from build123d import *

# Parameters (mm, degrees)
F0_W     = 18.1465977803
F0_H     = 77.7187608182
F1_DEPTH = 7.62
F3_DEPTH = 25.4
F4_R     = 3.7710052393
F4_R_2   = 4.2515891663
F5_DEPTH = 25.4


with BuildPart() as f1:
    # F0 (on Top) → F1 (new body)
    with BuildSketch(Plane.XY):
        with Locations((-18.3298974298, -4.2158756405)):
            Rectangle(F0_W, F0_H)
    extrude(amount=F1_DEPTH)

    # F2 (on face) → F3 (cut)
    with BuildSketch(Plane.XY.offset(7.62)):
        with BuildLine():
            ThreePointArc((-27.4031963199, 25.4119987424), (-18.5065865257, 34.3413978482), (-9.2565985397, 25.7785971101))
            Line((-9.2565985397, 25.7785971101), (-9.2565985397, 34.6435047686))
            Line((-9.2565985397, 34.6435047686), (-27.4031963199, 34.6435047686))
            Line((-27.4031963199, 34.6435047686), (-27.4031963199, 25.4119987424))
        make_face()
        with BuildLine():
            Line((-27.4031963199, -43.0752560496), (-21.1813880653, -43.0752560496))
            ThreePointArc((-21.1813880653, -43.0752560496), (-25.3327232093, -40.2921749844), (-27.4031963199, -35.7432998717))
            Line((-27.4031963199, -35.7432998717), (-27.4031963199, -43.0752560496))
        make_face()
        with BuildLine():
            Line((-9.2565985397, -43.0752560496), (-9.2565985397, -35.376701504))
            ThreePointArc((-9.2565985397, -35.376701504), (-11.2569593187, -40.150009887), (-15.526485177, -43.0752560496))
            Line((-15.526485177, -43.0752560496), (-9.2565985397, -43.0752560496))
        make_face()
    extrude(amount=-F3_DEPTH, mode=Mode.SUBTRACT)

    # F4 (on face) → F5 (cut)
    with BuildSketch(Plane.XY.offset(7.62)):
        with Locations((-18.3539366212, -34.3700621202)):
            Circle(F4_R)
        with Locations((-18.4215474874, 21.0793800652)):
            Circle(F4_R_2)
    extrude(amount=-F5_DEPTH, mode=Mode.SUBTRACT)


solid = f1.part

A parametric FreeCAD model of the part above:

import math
import FreeCAD as App
import Part
import Sketcher
from FreeCAD import Vector
Q = App.Units.Quantity


def add_polygon(sketch, points):
    """Adds a closed chain of lines whose ends are joined by coincident constraints."""
    first, n = sketch.GeometryCount, len(points)
    for a, b in zip(points, points[1:] + points[:1]):
        sketch.addGeometry(Part.LineSegment(App.Vector(*a, 0), App.Vector(*b, 0)), False)
    for i in range(n):
        sketch.addConstraint(Sketcher.Constraint("Coincident", first + i, 2, first + (i + 1) % n, 1))

doc = App.newDocument("Part")
body = doc.addObject("PartDesign::Body", "Body")

sketch1 = body.newObject("Sketcher::SketchObject", "Sketch")
sketch1.AttachmentSupport = (doc.getObject("XY_Plane"), [""])
sketch1.MapMode = "FlatFace"
add_polygon(sketch1, [(-27.403196, 34.643505), (-27.403196, -43.075256), (-9.256599, -43.075256), (-9.256599, 34.643505)])
sketch1.addConstraint(Sketcher.Constraint("Vertical", 0))
sketch1.addConstraint(Sketcher.Constraint("Horizontal", 1))
sketch1.addConstraint(Sketcher.Constraint("Vertical", 2))
sketch1.addConstraint(Sketcher.Constraint("Horizontal", 3))
sketch1.addConstraint(Sketcher.Constraint("DistanceY", 0, 2, 0, 1, Q("77.718761 mm")))
sketch1.addConstraint(Sketcher.Constraint("DistanceX", 1, 2, -1, 1, Q("9.256599 mm")))
sketch1.addConstraint(Sketcher.Constraint("DistanceX", 1, 1, 1, 2, Q("18.146598 mm")))
sketch1.addConstraint(Sketcher.Constraint("DistanceY", 0, 2, -1, 1, Q("43.075256 mm")))
pad1 = body.newObject("PartDesign::Pad", "Pad")
pad1.Profile = sketch1
pad1.Length = Q("0.3 in")

sketch2 = body.newObject("Sketcher::SketchObject", "Sketch001")
sketch2.AttachmentSupport = (doc.getObject("XY_Plane"), [""])
sketch2.MapMode = "FlatFace"
sketch2.AttachmentOffset = App.Placement(Vector(0, 0, 0.3 * 25.4), App.Rotation())
sketch2.addGeometry(Part.ArcOfCircle(Part.Circle(Vector(-18.323164, 25.261979, 0), Vector(0, 0, 1), 9.081272), math.radians(3.261223), math.radians(179.053446)), False)
sketch2.addGeometry(Part.LineSegment(Vector(-9.256599, 25.778597, 0), Vector(-9.256599, 34.643505, 0)), False)
sketch2.addGeometry(Part.LineSegment(Vector(-9.256599, 34.643505, 0), Vector(-27.403196, 34.643505, 0)), False)
sketch2.addGeometry(Part.LineSegment(Vector(-27.403196, 34.643505, 0), Vector(-27.403196, 25.411999, 0)), False)
sketch2.addGeometry(Part.LineSegment(Vector(-27.403196, -43.075256, 0), Vector(-21.181388, -43.075256, 0)), False)
sketch2.addGeometry(Part.ArcOfCircle(Part.Circle(Vector(-18.353937, -34.370062, 0), Vector(0, 0, 1), 9.152862), math.radians(-171.37112), math.radians(-107.993823)), False)
sketch2.addGeometry(Part.LineSegment(Vector(-27.403196, -35.7433, 0), Vector(-27.403196, -43.075256, 0)), False)
sketch2.addGeometry(Part.LineSegment(Vector(-9.256599, -43.075256, 0), Vector(-9.256599, -35.376702, 0)), False)
sketch2.addGeometry(Part.ArcOfCircle(Part.Circle(Vector(-18.353937, -34.370062, 0), Vector(0, 0, 1), 9.152862), math.radians(-72.006177), math.radians(-6.314211)), False)
sketch2.addGeometry(Part.LineSegment(Vector(-15.526485, -43.075256, 0), Vector(-9.256599, -43.075256, 0)), False)
sketch2.addConstraint(Sketcher.Constraint("Coincident", 0, 1, 1, 1))
sketch2.addConstraint(Sketcher.Constraint("Coincident", 1, 2, 2, 1))
sketch2.addConstraint(Sketcher.Constraint("Coincident", 2, 2, 3, 1))
sketch2.addConstraint(Sketcher.Constraint("Coincident", 3, 2, 0, 2))
sketch2.addConstraint(Sketcher.Constraint("Coincident", 4, 2, 5, 2))
sketch2.addConstraint(Sketcher.Constraint("Coincident", 5, 1, 6, 1))
sketch2.addConstraint(Sketcher.Constraint("Coincident", 6, 2, 4, 1))
sketch2.addConstraint(Sketcher.Constraint("Coincident", 7, 2, 8, 2))
sketch2.addConstraint(Sketcher.Constraint("Coincident", 8, 1, 9, 1))
sketch2.addConstraint(Sketcher.Constraint("Coincident", 9, 2, 7, 1))
sketch2.addConstraint(Sketcher.Constraint("Vertical", 1))
sketch2.addConstraint(Sketcher.Constraint("Horizontal", 2))
sketch2.addConstraint(Sketcher.Constraint("Vertical", 3))
sketch2.addConstraint(Sketcher.Constraint("Horizontal", 4))
sketch2.addConstraint(Sketcher.Constraint("Vertical", 6))
sketch2.addConstraint(Sketcher.Constraint("Vertical", 7))
sketch2.addConstraint(Sketcher.Constraint("Horizontal", 9))
sketch2.addConstraint(Sketcher.Constraint("Coincident", 8, 3, 5, 3))
sketch2.addConstraint(Sketcher.Constraint("Equal", 5, 8))
sketch2.addConstraint(Sketcher.Constraint("Horizontal", 6, 2, 8, 1))
sketch2.addConstraint(Sketcher.Constraint("Vertical", 3, 2, 5, 1))
sketch2.addConstraint(Sketcher.Constraint("Vertical", 1, 2, 7, 2))
sketch2.addConstraint(Sketcher.Constraint("Radius", 0, Q("9.081272 mm")))
sketch2.addConstraint(Sketcher.Constraint("Radius", 5, Q("9.152862 mm")))
sketch2.addConstraint(Sketcher.Constraint("DistanceX", 4, 1, 4, 2, Q("6.221808 mm")))
sketch2.addConstraint(Sketcher.Constraint("DistanceX", 0, 1, -1, 1, Q("9.256599 mm")))
sketch2.addConstraint(Sketcher.Constraint("DistanceY", -1, 1, 3, 2, Q("25.411999 mm")))
sketch2.addConstraint(Sketcher.Constraint("DistanceY", 5, 1, -1, 1, Q("35.7433 mm")))
sketch2.addConstraint(Sketcher.Constraint("DistanceY", 7, 2, -1, 1, Q("35.376702 mm")))
sketch2.addConstraint(Sketcher.Constraint("DistanceY", 3, 2, 0, 1, Q("0.366598 mm")))
sketch2.addConstraint(Sketcher.Constraint("DistanceX", 2, 2, 2, 1, Q("18.146598 mm")))
sketch2.addConstraint(Sketcher.Constraint("DistanceY", 1, 1, 1, 2, Q("8.864908 mm")))
pocket1 = body.newObject("PartDesign::Pocket", "Pocket")
pocket1.Profile = sketch2
pocket1.Length = Q("1 in")

sketch3 = body.newObject("Sketcher::SketchObject", "Sketch002")
sketch3.AttachmentSupport = (doc.getObject("XY_Plane"), [""])
sketch3.MapMode = "FlatFace"
sketch3.AttachmentOffset = App.Placement(Vector(0, 0, 0.3 * 25.4), App.Rotation())
sketch3.addGeometry(Part.Circle(Vector(-18.353937, -34.370062, 0), Vector(0, 0, 1), 3.771005), False)
sketch3.addGeometry(Part.Circle(Vector(-18.421547, 21.07938, 0), Vector(0, 0, 1), 4.251589), False)
sketch3.addConstraint(Sketcher.Constraint("Diameter", 0, Q("7.54201 mm")))
sketch3.addConstraint(Sketcher.Constraint("Diameter", 1, Q("8.503178 mm")))
sketch3.addConstraint(Sketcher.Constraint("DistanceY", -1, 1, 1, 3, Q("21.07938 mm")))
sketch3.addConstraint(Sketcher.Constraint("DistanceX", 1, 3, 0, 3, Q("0.067611 mm")))
sketch3.addConstraint(Sketcher.Constraint("DistanceX", 0, 3, -1, 1, Q("18.353937 mm")))
sketch3.addConstraint(Sketcher.Constraint("DistanceY", 0, 3, -1, 1, Q("34.370062 mm")))
pocket2 = body.newObject("PartDesign::Pocket", "Pocket001")
pocket2.Profile = sketch3
pocket2.Length = Q("1 in")

doc.recompute()
